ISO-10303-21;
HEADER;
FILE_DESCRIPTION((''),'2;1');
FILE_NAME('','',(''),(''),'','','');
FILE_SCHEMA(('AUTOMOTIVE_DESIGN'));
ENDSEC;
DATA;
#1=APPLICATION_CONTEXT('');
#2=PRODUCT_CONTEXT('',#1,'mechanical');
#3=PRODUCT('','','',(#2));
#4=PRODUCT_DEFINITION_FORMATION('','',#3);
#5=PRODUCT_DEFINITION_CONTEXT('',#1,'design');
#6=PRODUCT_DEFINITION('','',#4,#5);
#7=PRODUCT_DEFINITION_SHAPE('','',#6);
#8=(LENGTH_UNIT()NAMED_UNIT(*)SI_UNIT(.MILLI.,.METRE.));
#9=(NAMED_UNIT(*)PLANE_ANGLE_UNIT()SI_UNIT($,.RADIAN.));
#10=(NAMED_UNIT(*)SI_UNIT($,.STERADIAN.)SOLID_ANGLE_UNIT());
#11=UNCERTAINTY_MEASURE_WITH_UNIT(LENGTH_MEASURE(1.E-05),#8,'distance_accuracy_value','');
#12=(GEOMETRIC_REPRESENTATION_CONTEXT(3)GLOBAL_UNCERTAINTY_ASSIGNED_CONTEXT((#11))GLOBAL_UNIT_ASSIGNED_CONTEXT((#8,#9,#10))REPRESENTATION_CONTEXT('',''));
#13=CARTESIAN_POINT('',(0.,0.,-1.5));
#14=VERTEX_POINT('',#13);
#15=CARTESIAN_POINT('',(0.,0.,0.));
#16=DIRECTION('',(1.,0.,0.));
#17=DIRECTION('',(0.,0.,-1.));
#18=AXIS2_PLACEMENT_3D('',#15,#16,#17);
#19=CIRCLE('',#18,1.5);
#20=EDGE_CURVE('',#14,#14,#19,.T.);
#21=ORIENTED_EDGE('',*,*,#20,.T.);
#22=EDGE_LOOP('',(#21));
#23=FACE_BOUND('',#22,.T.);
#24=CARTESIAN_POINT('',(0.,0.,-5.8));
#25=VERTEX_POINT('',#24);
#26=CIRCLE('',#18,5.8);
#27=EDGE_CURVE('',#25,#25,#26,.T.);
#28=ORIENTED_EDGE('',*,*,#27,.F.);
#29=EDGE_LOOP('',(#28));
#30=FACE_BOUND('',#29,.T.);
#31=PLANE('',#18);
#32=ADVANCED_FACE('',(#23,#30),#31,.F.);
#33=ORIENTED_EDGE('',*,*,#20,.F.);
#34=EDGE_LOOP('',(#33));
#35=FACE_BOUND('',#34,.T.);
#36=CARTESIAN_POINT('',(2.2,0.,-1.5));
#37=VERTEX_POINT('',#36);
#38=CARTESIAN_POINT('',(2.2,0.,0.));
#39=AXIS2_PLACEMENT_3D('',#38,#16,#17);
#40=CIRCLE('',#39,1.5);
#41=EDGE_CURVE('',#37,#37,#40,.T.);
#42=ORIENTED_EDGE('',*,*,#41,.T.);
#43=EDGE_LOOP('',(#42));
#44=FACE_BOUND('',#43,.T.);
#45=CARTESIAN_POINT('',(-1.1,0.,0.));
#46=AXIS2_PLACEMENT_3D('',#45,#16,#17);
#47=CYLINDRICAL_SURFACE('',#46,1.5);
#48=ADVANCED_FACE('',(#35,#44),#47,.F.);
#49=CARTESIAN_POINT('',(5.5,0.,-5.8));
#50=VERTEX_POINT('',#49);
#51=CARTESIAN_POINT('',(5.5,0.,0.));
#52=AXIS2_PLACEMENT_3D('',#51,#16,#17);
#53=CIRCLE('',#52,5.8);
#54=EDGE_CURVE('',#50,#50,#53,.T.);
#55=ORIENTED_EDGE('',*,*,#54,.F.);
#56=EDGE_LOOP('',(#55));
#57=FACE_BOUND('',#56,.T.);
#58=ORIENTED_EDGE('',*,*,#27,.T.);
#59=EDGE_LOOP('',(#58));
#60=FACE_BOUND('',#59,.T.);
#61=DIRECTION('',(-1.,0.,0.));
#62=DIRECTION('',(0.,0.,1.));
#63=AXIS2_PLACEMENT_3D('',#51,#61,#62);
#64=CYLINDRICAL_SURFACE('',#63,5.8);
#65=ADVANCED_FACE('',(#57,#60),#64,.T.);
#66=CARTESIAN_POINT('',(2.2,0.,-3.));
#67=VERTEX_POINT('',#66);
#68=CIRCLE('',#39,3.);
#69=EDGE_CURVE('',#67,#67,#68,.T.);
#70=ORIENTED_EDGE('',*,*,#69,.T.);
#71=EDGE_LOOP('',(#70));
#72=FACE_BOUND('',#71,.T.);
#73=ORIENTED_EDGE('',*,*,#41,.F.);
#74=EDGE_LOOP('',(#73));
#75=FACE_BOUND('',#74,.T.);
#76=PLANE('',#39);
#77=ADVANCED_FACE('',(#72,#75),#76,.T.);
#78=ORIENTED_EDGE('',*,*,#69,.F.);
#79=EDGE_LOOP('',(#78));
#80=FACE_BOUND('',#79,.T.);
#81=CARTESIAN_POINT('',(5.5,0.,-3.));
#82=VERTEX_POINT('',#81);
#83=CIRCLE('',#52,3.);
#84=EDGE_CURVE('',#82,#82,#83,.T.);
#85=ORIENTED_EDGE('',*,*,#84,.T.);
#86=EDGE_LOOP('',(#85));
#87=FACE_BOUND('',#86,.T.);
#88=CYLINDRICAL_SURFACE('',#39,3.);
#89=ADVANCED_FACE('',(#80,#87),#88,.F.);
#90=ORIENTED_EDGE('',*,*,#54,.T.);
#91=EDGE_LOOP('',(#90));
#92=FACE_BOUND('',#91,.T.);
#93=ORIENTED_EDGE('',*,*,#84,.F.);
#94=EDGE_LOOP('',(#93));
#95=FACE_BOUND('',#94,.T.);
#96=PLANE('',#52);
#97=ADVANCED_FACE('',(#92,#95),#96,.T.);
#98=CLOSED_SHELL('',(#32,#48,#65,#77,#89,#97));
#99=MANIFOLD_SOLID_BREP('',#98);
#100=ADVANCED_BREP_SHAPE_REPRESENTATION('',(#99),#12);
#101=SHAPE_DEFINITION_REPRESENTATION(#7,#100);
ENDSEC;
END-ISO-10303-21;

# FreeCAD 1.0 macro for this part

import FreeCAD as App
import Part
import Sketcher
from FreeCAD import Vector

doc = App.newDocument("Part")
params = doc.addObject("Spreadsheet::Sheet", "Params")
for row, (alias, value) in enumerate([
    ("sketch1_diameter", "11.6 mm"),
    ("pad1_length", "5.5 mm"),
    ("sketch2_diameter", "6 mm"),
    ("pocket1_length", "3.3 mm"),
    ("sketch3_diameter", "3 mm"),
    ("pocket2_length", "3.3 mm"),
], start=1):
    params.set(f"A{row}", alias)
    params.set(f"B{row}", "=" + value)
    params.setAlias(f"B{row}", alias)

body = doc.addObject("PartDesign::Body", "Body")

sketch1 = body.newObject("Sketcher::SketchObject", "Sketch")
sketch1.AttachmentSupport = (doc.getObject("YZ_Plane"), [""])
sketch1.MapMode = "FlatFace"
sketch1.addGeometry(Part.Circle(Vector(0, 0, 0), Vector(0, 0, 1), 6), False)
sketch1.addConstraint([
    Sketcher.Constraint("Coincident", 0, 3, -1, 1),
    Sketcher.Constraint("Diameter", 0, 11.6),
])
sketch1.setExpression("Constraints[1]", "Params.sketch1_diameter")
pad1 = body.newObject("PartDesign::Pad", "Pad")
pad1.Profile = sketch1
pad1.setExpression("Length", "Params.pad1_length")

sketch2 = body.newObject("Sketcher::SketchObject", "Sketch001")
sketch2.AttachmentSupport = (doc.getObject("YZ_Plane"), [""])
sketch2.MapMode = "FlatFace"
sketch2.AttachmentOffset = App.Placement(Vector(0, 0, 5.5), App.Rotation())
sketch2.addGeometry(Part.Circle(Vector(0, 0, 0), Vector(0, 0, 1), 3), False)
sketch2.addConstraint([
    Sketcher.Constraint("Coincident", 0, 3, -1, 1),
    Sketcher.Constraint("Diameter", 0, 6.0),
])
sketch2.setExpression("Constraints[1]", "Params.sketch2_diameter")
pocket1 = body.newObject("PartDesign::Pocket", "Pocket")
pocket1.Profile = sketch2
pocket1.setExpression("Length", "Params.pocket1_length")

sketch3 = body.newObject("Sketcher::SketchObject", "Sketch002")
sketch3.AttachmentSupport = (doc.getObject("YZ_Plane"), [""])
sketch3.MapMode = "FlatFace"
sketch3.AttachmentOffset = App.Placement(Vector(0, 0, 2.2), App.Rotation())
sketch3.addGeometry(Part.Circle(Vector(0, 0, 0), Vector(0, 0, 1), 1.5), False)
sketch3.addConstraint([
    Sketcher.Constraint("Coincident", 0, 3, -1, 1),
    Sketcher.Constraint("Diameter", 0, 3.0),
])
sketch3.setExpression("Constraints[1]", "Params.sketch3_diameter")
pocket2 = body.newObject("PartDesign::Pocket", "Pocket001")
pocket2.Profile = sketch3
pocket2.setExpression("Length", "Params.pocket2_length")

doc.recompute()
